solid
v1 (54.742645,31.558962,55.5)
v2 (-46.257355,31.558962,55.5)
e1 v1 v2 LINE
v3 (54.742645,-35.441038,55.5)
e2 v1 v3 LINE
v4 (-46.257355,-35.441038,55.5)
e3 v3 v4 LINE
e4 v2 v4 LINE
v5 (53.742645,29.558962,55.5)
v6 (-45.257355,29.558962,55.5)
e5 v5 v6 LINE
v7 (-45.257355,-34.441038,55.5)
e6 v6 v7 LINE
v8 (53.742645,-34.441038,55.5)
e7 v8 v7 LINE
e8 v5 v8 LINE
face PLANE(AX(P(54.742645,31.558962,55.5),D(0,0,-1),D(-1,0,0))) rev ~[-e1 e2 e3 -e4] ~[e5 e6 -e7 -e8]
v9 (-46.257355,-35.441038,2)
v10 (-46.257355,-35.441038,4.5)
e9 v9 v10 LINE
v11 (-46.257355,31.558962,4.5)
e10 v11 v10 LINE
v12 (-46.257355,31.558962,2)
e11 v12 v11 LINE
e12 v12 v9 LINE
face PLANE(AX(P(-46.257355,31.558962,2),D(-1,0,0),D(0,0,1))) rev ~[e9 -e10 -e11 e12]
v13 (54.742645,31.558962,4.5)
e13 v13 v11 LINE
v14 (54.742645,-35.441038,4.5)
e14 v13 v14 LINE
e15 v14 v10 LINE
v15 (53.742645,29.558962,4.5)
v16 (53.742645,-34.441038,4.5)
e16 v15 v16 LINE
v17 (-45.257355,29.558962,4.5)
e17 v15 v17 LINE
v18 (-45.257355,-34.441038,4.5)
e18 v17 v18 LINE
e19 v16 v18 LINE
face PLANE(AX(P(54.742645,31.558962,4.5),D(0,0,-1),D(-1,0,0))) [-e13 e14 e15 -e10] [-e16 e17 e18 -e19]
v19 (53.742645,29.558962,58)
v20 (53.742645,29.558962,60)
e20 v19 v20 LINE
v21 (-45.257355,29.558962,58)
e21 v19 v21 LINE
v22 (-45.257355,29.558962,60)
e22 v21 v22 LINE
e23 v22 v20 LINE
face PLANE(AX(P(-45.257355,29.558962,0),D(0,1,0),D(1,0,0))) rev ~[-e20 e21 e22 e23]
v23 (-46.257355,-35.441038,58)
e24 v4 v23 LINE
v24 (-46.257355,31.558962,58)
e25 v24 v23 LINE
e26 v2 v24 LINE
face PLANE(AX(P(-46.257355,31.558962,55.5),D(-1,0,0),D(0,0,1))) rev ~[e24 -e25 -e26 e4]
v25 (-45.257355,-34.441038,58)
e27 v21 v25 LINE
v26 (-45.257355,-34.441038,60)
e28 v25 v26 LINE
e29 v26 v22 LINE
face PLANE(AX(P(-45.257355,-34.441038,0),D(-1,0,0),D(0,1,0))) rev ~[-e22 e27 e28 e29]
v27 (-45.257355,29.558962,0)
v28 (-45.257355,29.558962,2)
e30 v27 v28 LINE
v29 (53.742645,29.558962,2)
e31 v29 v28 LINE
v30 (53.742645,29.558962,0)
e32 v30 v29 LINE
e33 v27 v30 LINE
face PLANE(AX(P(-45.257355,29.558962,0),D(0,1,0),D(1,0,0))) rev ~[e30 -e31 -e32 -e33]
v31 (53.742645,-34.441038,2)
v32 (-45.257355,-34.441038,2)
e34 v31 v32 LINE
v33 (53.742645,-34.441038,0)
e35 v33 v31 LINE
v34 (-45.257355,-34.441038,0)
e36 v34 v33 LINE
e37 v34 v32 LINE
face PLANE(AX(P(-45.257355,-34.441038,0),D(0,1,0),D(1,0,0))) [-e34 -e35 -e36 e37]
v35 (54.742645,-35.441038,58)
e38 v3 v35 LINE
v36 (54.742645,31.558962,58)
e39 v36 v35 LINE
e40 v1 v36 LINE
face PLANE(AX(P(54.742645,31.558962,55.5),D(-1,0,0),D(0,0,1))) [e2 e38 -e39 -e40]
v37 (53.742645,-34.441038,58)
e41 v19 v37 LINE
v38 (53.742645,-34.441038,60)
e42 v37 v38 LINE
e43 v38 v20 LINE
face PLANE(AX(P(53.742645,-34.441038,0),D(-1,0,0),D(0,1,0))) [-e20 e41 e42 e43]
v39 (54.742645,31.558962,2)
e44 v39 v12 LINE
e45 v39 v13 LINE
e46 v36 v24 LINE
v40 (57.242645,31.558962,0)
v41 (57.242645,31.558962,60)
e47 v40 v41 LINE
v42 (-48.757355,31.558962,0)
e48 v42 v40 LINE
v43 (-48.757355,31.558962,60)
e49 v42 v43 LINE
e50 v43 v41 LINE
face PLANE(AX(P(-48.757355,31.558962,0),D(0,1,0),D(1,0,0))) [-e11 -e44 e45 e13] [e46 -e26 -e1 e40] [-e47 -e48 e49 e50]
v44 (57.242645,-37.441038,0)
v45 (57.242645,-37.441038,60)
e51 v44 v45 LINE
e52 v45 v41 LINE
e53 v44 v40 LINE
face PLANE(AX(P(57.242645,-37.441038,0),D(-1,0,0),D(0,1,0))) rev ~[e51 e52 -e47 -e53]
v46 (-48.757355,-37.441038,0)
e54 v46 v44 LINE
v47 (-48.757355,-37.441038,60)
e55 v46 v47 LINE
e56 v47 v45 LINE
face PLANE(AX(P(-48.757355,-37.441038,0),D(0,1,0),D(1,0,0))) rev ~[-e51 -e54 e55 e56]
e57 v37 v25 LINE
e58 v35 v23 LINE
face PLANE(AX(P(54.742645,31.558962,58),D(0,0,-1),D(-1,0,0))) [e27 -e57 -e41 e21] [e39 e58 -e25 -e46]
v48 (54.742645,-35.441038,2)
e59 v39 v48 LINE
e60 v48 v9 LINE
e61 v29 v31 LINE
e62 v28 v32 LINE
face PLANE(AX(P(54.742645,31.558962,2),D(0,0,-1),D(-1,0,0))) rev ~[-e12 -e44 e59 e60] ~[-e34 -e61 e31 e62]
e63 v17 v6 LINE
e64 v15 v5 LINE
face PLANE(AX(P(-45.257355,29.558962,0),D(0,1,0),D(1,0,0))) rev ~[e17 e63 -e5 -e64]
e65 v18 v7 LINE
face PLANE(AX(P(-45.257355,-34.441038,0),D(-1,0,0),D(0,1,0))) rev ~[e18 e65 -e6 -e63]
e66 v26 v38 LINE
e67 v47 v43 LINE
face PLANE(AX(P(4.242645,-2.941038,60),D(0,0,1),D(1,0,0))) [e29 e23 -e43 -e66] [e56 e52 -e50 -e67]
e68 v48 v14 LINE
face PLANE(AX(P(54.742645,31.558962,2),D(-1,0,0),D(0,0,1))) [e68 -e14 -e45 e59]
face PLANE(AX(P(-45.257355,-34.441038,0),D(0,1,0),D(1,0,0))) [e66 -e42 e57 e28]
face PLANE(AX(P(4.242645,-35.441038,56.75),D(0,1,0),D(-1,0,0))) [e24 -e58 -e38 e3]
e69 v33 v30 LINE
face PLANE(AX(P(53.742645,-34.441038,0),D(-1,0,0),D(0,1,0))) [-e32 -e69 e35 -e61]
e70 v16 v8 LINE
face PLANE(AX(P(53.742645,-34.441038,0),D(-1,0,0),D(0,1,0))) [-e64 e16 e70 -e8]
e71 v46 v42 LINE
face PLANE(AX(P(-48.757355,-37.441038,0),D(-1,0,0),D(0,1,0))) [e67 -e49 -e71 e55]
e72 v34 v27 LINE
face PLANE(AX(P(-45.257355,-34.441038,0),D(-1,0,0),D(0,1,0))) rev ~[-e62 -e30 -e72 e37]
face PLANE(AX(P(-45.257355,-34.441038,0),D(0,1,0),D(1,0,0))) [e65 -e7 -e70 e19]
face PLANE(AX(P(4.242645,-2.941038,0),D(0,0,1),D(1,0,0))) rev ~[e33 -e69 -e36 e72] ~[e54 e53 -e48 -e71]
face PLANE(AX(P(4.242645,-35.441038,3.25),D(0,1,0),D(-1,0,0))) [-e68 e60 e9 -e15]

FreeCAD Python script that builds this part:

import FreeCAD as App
import Part
import Sketcher

V = App.Vector

doc = App.newDocument("Part")
body = doc.addObject("PartDesign::Body", "Body")

sketch1 = body.newObject("Sketcher::SketchObject", "Sketch")
sketch1.AttachmentSupport = (doc.getObject("XY_Plane"), [""])
sketch1.MapMode = "FlatFace"
sketch1.addGeometry([
    Part.LineSegment(V(-49, 32, 0), V(-49, -37, 0)),
    Part.LineSegment(V(-49, -37, 0), V(57, -37, 0)),
    Part.LineSegment(V(57, -37, 0), V(57, 32, 0)),
    Part.LineSegment(V(57, 32, 0), V(-49, 32, 0)),
    Part.LineSegment(V(54, -34, 0), V(-45, -34, 0)),
    Part.LineSegment(V(-45, -34, 0), V(-45, 30, 0)),
    Part.LineSegment(V(-45, 30, 0), V(54, 30, 0)),
    Part.LineSegment(V(54, 30, 0), V(54, -34, 0)),
], False)
sketch1.addConstraint([
    Sketcher.Constraint("Coincident", 0, 2, 1, 1),
    Sketcher.Constraint("Coincident", 1, 2, 2, 1),
    Sketcher.Constraint("Coincident", 2, 2, 3, 1),
    Sketcher.Constraint("Coincident", 3, 2, 0, 1),
    Sketcher.Constraint("Coincident", 4, 2, 5, 1),
    Sketcher.Constraint("Coincident", 5, 2, 6, 1),
    Sketcher.Constraint("Coincident", 6, 2, 7, 1),
    Sketcher.Constraint("Coincident", 7, 2, 4, 1),
    Sketcher.Constraint("Vertical", 0),
    Sketcher.Constraint("Horizontal", 1),
    Sketcher.Constraint("Vertical", 2),
    Sketcher.Constraint("Horizontal", 3),
    Sketcher.Constraint("Horizontal", 4),
    Sketcher.Constraint("Vertical", 5),
    Sketcher.Constraint("Horizontal", 6),
    Sketcher.Constraint("Vertical", 7),
    Sketcher.Constraint("DistanceX", 1, 1, 1, 2, 106.0),
    Sketcher.Constraint("DistanceX", 4, 2, 4, 1, 99.0),
    Sketcher.Constraint("DistanceY", 0, 2, 0, 1, 69.0),
    Sketcher.Constraint("DistanceY", 5, 1, 5, 2, 64.0),
    Sketcher.Constraint("DistanceY", 0, 2, 4, 2, 3.0),
    Sketcher.Constraint("DistanceX", 0, 2, 4, 2, 3.5),
    Sketcher.Constraint("DistanceX", 0, 2, -1, 1, 48.757355),
    Sketcher.Constraint("DistanceY", 0, 2, -1, 1, 37.441038),
])
pad1 = body.newObject("PartDesign::Pad", "Pad")
pad1.Profile = sketch1
pad1.Length = 60

sketch2 = body.newObject("Sketcher::SketchObject", "Sketch001")
sketch2.AttachmentSupport = (doc.getObject("XZ_Plane"), [""])
sketch2.MapMode = "FlatFace"
sketch2.AttachmentOffset = App.Placement(V(0, 0, -31.558962), App.Rotation())
sketch2.addGeometry([
    Part.LineSegment(V(54.7, 58, 0), V(54.7, 55.5, 0)),
    Part.LineSegment(V(54.7, 55.5, 0), V(-46.3, 55.5, 0)),
    Part.LineSegment(V(-46.3, 55.5, 0), V(-46.3, 58, 0)),
    Part.LineSegment(V(-46.3, 58, 0), V(54.7, 58, 0)),
    Part.LineSegment(V(54.7, 4.5, 0), V(54.7, 2, 0)),
    Part.LineSegment(V(54.7, 2, 0), V(-46.3, 2, 0)),
    Part.LineSegment(V(-46.3, 2, 0), V(-46.3, 4.5, 0)),
    Part.LineSegment(V(-46.3, 4.5, 0), V(54.7, 4.5, 0)),
], False)
sketch2.addConstraint([
    Sketcher.Constraint("Coincident", 0, 2, 1, 1),
    Sketcher.Constraint("Coincident", 1, 2, 2, 1),
    Sketcher.Constraint("Coincident", 2, 2, 3, 1),
    Sketcher.Constraint("Coincident", 3, 2, 0, 1),
    Sketcher.Constraint("Coincident", 4, 2, 5, 1),
    Sketcher.Constraint("Coincident", 5, 2, 6, 1),
    Sketcher.Constraint("Coincident", 6, 2, 7, 1),
    Sketcher.Constraint("Coincident", 7, 2, 4, 1),
    Sketcher.Constraint("Vertical", 0),
    Sketcher.Constraint("Horizontal", 1),
    Sketcher.Constraint("Vertical", 2),
    Sketcher.Constraint("Horizontal", 3),
    Sketcher.Constraint("Vertical", 4),
    Sketcher.Constraint("Horizontal", 5),
    Sketcher.Constraint("Vertical", 6),
    Sketcher.Constraint("Horizontal", 7),
    Sketcher.Constraint("Vertical", 3, 2, 4, 2),
    Sketcher.Constraint("Vertical", 2, 2, 5, 2),
    Sketcher.Constraint("Equal", 2, 4),
    Sketcher.Constraint("DistanceX", 1, 2, 1, 1, 101.0),
    Sketcher.Constraint("DistanceY", 0, 2, 0, 1, 2.5),
    Sketcher.Constraint("DistanceY", -1, 1, 2, 2, 58.0),
    Sketcher.Constraint("DistanceY", -1, 1, 4, 2, 2.0),
    Sketcher.Constraint("DistanceX", -1, 1, 0, 2, 54.742645),
])
pocket1 = body.newObject("PartDesign::Pocket", "Pocket")
pocket1.Profile = sketch2
pocket1.Length = 67
pocket1.Reversed = True

doc.recompute()
